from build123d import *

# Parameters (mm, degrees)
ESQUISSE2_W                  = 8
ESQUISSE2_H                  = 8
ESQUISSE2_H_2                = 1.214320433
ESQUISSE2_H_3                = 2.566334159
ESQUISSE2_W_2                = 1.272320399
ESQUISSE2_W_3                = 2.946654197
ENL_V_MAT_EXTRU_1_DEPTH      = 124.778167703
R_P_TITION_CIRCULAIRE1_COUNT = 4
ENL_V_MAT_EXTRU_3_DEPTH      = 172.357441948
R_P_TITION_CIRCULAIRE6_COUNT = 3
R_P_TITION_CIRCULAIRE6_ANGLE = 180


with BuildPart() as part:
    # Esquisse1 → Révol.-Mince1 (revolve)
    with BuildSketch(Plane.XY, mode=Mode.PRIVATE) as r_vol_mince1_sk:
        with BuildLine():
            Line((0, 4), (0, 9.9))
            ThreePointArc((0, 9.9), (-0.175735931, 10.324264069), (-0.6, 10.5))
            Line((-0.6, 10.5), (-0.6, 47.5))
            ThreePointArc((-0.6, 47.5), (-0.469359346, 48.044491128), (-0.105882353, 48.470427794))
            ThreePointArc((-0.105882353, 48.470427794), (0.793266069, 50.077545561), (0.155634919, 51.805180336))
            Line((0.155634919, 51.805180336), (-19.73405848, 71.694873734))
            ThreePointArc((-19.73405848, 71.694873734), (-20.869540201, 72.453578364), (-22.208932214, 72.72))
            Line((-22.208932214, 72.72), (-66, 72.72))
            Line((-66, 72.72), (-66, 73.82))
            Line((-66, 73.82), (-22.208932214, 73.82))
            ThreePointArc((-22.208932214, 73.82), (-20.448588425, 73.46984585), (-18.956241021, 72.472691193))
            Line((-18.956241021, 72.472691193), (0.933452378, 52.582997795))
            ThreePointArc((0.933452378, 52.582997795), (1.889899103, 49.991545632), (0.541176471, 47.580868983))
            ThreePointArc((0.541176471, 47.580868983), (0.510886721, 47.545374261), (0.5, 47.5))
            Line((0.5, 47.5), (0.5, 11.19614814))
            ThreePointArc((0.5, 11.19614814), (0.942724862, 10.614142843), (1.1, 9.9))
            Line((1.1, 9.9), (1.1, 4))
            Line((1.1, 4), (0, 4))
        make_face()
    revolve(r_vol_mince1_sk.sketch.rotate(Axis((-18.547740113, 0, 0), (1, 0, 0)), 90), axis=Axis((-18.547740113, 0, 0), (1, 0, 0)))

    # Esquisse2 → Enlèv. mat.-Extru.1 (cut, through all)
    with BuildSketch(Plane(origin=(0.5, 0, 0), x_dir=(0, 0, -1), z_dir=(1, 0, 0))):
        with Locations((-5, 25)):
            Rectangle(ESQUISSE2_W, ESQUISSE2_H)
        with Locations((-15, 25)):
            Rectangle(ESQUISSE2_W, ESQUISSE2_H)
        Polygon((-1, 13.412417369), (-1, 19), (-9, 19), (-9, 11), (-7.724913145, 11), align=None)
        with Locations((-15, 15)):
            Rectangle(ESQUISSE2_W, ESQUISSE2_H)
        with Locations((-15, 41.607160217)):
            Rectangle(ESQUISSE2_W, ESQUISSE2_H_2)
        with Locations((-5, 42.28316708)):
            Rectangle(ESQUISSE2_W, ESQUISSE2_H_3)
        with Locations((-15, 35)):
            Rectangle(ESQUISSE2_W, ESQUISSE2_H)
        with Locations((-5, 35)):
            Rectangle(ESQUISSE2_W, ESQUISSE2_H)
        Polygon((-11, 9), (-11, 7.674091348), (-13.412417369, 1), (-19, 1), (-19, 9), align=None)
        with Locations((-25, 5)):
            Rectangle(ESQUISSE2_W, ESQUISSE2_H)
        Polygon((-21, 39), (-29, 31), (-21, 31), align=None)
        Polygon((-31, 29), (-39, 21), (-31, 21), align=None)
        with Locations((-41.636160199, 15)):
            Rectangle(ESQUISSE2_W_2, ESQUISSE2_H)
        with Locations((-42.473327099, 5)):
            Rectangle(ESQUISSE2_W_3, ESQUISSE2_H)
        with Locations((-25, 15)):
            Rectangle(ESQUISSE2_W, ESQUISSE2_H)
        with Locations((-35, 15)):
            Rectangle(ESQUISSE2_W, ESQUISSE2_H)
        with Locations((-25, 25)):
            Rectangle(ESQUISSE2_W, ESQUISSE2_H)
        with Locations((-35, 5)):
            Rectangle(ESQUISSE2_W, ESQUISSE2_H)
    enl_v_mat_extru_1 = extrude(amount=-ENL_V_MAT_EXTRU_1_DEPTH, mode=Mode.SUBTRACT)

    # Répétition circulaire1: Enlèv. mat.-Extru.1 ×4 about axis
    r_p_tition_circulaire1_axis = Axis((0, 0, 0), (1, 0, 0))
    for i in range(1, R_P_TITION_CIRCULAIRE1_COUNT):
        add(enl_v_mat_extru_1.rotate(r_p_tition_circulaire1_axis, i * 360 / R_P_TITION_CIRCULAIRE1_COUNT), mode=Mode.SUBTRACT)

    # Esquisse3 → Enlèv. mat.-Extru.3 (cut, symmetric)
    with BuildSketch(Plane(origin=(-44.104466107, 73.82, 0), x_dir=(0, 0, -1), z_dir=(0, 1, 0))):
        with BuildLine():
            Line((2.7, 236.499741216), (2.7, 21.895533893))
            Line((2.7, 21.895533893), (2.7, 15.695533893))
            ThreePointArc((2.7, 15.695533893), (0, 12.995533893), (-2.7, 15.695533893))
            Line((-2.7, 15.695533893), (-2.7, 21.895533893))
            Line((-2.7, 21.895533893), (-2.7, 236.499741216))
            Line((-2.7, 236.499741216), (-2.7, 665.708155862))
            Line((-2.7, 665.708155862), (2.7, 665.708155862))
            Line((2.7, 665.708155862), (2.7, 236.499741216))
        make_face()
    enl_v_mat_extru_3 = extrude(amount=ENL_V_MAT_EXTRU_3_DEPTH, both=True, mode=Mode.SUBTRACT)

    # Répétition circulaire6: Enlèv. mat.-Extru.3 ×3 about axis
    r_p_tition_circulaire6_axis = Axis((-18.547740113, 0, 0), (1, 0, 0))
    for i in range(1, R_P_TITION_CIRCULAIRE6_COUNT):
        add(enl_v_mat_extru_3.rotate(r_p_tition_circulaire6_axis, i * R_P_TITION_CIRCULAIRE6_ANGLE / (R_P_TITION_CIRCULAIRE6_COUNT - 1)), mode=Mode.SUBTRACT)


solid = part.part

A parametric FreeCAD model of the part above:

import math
import FreeCAD as App
import Part
import Sketcher

V = App.Vector
Q = App.Units.Quantity

doc = App.newDocument("Part")
body = doc.addObject("PartDesign::Body", "Body")

sketch1 = body.newObject("Sketcher::SketchObject", "Sketch")
sketch1.AttachmentSupport = (doc.getObject("XY_Plane"), [""])
sketch1.MapMode = "FlatFace"
sketch1.addGeometry([
    Part.LineSegment(V(0, 9.9, 0), V(0, 4, 0)),
    Part.LineSegment(V(0, 4, 0), V(1.1, 4, 0)),
    Part.LineSegment(V(1.1, 4, 0), V(1.1, 9.9, 0)),
    Part.ArcOfCircle(Part.Circle(V(-0.6, 9.9, 0), V(0, 0, 1), 1.7), math.radians(0), math.radians(50)),
    Part.LineSegment(V(0.5, 11.2, 0), V(0.5, 47.5, 0)),
    Part.ArcOfCircle(Part.Circle(V(0.6, 47.5, 0), V(0, 0, 1), 0.1), math.radians(126), math.radians(180)),
    Part.ArcOfCircle(Part.Circle(V(-1.4, 50.25, 0), V(0, 0, 1), 3.3), math.radians(-54), math.radians(45)),
    Part.LineSegment(V(0.93, 52.58, 0), V(-18.96, 72.47, 0)),
    Part.ArcOfCircle(Part.Circle(V(-22.21, 69.22, 0), V(0, 0, 1), 4.6), math.radians(45), math.radians(90)),
    Part.LineSegment(V(-22.21, 73.82, 0), V(-66, 73.82, 0)),
    Part.LineSegment(V(-66, 73.82, 0), V(-66, 72.72, 0)),
    Part.LineSegment(V(-66, 72.72, 0), V(-22.21, 72.72, 0)),
    Part.ArcOfCircle(Part.Circle(V(-22.21, 69.22, 0), V(0, 0, 1), 3.5), math.radians(45), math.radians(90)),
    Part.LineSegment(V(-19.73, 71.69, 0), V(0.16, 51.81, 0)),
    Part.ArcOfCircle(Part.Circle(V(-1.4, 50.25, 0), V(0, 0, 1), 2.2), math.radians(-54), math.radians(45)),
    Part.ArcOfCircle(Part.Circle(V(0.6, 47.5, 0), V(0, 0, 1), 1.2), math.radians(126), math.radians(180)),
    Part.LineSegment(V(-0.6, 47.5, 0), V(-0.6, 10.5, 0)),
    Part.ArcOfCircle(Part.Circle(V(-0.6, 9.9, 0), V(0, 0, 1), 0.6), math.radians(0), math.radians(90)),
], False)
sketch1.addConstraint([
    Sketcher.Constraint("Coincident", 0, 2, 1, 1),
    Sketcher.Constraint("Coincident", 1, 2, 2, 1),
    Sketcher.Constraint("Tangent", 2, 2, 3, 1),
    Sketcher.Constraint("Coincident", 3, 2, 4, 1),
    Sketcher.Constraint("Tangent", 4, 2, 5, 2),
    Sketcher.Constraint("Tangent", 5, 1, 6, 1),
    Sketcher.Constraint("Tangent", 6, 2, 7, 1),
    Sketcher.Constraint("Tangent", 7, 2, 8, 1),
    Sketcher.Constraint("Tangent", 8, 2, 9, 1),
    Sketcher.Constraint("Coincident", 9, 2, 10, 1),
    Sketcher.Constraint("Coincident", 10, 2, 11, 1),
    Sketcher.Constraint("Tangent", 11, 2, 12, 2),
    Sketcher.Constraint("Tangent", 12, 1, 13, 1),
    Sketcher.Constraint("Tangent", 13, 2, 14, 2),
    Sketcher.Constraint("Tangent", 14, 1, 15, 1),
    Sketcher.Constraint("Tangent", 15, 2, 16, 1),
    Sketcher.Constraint("Coincident", 16, 2, 17, 2),
    Sketcher.Constraint("Tangent", 17, 1, 0, 1),
    Sketcher.Constraint("Vertical", 0),
    Sketcher.Constraint("Horizontal", 1),
    Sketcher.Constraint("Vertical", 2),
    Sketcher.Constraint("Vertical", 4),
    Sketcher.Constraint("Horizontal", 9),
    Sketcher.Constraint("Vertical", 10),
    Sketcher.Constraint("Horizontal", 11),
    Sketcher.Constraint("Vertical", 16),
    Sketcher.Constraint("Coincident", 12, 3, 8, 3),
    Sketcher.Constraint("Coincident", 14, 3, 6, 3),
    Sketcher.Constraint("Coincident", 15, 3, 5, 3),
    Sketcher.Constraint("Coincident", 17, 3, 3, 3),
    Sketcher.Constraint("PointOnObject", 0, 2, -2),
    Sketcher.Constraint("Parallel", 7, 13),
    Sketcher.Constraint("Vertical", 17, 3, 15, 2),
    Sketcher.Constraint("Equal", 1, 10),
    Sketcher.Constraint("Radius", 3, 1.7),
    Sketcher.Constraint("Radius", 5, 0.1),
    Sketcher.Constraint("Radius", 6, 3.3),
    Sketcher.Constraint("Radius", 8, 4.6),
    Sketcher.Constraint("Radius", 12, 3.5),
    Sketcher.Constraint("DistanceY", 16, 2, 16, 1, 37.0),
    Sketcher.Constraint("Angle", 7, Q("135 deg")),
    Sketcher.Constraint("DistanceY", 0, 2, 0, 1, 5.9),
    Sketcher.Constraint("DistanceY", -1, 1, 0, 2, 4.0),
    Sketcher.Constraint("DistanceX", 9, 2, -1, 1, 66.0),
    Sketcher.Constraint("DistanceX", 6, 3, 5, 3, 2.0),
    Sketcher.Constraint("DistanceY", -1, 1, 8, 3, 69.22),
])
revolution = body.newObject("PartDesign::Revolution", "Revolution")
revolution.Profile = sketch1
revolution.ReferenceAxis = (sketch1, ["H_Axis"])
revolution.Angle = 360

sketch2 = body.newObject("Sketcher::SketchObject", "Sketch001")
sketch2.AttachmentSupport = (doc.getObject("YZ_Plane"), [""])
sketch2.MapMode = "FlatFace"
sketch2.AttachmentOffset = App.Placement(V(0, 0, 0.5), App.Rotation())
sketch2.addGeometry([
    Part.LineSegment(V(29, 9, 0), V(21, 9, 0)),
    Part.LineSegment(V(21, 9, 0), V(21, 1, 0)),
    Part.LineSegment(V(21, 1, 0), V(29, 1, 0)),
    Part.LineSegment(V(29, 1, 0), V(29, 9, 0)),
    Part.LineSegment(V(29, 19, 0), V(21, 19, 0)),
    Part.LineSegment(V(21, 19, 0), V(21, 11, 0)),
    Part.LineSegment(V(21, 11, 0), V(29, 11, 0)),
    Part.LineSegment(V(29, 11, 0), V(29, 19, 0)),
    Part.LineSegment(V(13.4, 1, 0), V(19, 1, 0)),
    Part.LineSegment(V(19, 1, 0), V(19, 9, 0)),
    Part.LineSegment(V(19, 9, 0), V(11, 9, 0)),
    Part.LineSegment(V(11, 9, 0), V(11, 7.7, 0)),
    Part.LineSegment(V(11, 7.7, 0), V(13.4, 1, 0)),
    Part.LineSegment(V(19, 19, 0), V(11, 19, 0)),
    Part.LineSegment(V(11, 19, 0), V(11, 11, 0)),
    Part.LineSegment(V(11, 11, 0), V(19, 11, 0)),
    Part.LineSegment(V(19, 11, 0), V(19, 19, 0)),
    Part.LineSegment(V(42.2, 19, 0), V(41, 19, 0)),
    Part.LineSegment(V(41, 19, 0), V(41, 11, 0)),
    Part.LineSegment(V(41, 11, 0), V(42.2, 11, 0)),
    Part.LineSegment(V(42.2, 11, 0), V(42.2, 19, 0)),
    Part.LineSegment(V(43.6, 9, 0), V(41, 9, 0)),
    Part.LineSegment(V(41, 9, 0), V(41, 1, 0)),
    Part.LineSegment(V(41, 1, 0), V(43.6, 1, 0)),
    Part.LineSegment(V(43.6, 1, 0), V(43.6, 9, 0)),
    Part.LineSegment(V(39, 19, 0), V(31, 19, 0)),
    Part.LineSegment(V(31, 19, 0), V(31, 11, 0)),
    Part.LineSegment(V(31, 11, 0), V(39, 11, 0)),
    Part.LineSegment(V(39, 11, 0), V(39, 19, 0)),
    Part.LineSegment(V(39, 9, 0), V(31, 9, 0)),
    Part.LineSegment(V(31, 9, 0), V(31, 1, 0)),
    Part.LineSegment(V(31, 1, 0), V(39, 1, 0)),
    Part.LineSegment(V(39, 1, 0), V(39, 9, 0)),
    Part.LineSegment(V(7.7, 11, 0), V(9, 11, 0)),
    Part.LineSegment(V(9, 11, 0), V(9, 19, 0)),
    Part.LineSegment(V(9, 19, 0), V(1, 19, 0)),
    Part.LineSegment(V(1, 19, 0), V(1, 13.4, 0)),
    Part.LineSegment(V(1, 13.4, 0), V(7.7, 11, 0)),
    Part.LineSegment(V(9, 29, 0), V(1, 29, 0)),
    Part.LineSegment(V(1, 29, 0), V(1, 21, 0)),
    Part.LineSegment(V(1, 21, 0), V(9, 21, 0)),
    Part.LineSegment(V(9, 21, 0), V(9, 29, 0)),
    Part.LineSegment(V(39, 21, 0), V(31, 29, 0)),
    Part.LineSegment(V(31, 29, 0), V(31, 21, 0)),
    Part.LineSegment(V(31, 21, 0), V(39, 21, 0)),
    Part.LineSegment(V(29, 31, 0), V(21, 39, 0)),
    Part.LineSegment(V(21, 39, 0), V(21, 31, 0)),
    Part.LineSegment(V(21, 31, 0), V(29, 31, 0)),
    Part.LineSegment(V(19, 42.3, 0), V(11, 42.3, 0)),
    Part.LineSegment(V(11, 42.3, 0), V(11, 41, 0)),
    Part.LineSegment(V(11, 41, 0), V(19, 41, 0)),
    Part.LineSegment(V(19, 41, 0), V(19, 42.3, 0)),
    Part.LineSegment(V(9, 43.9, 0), V(1, 43.9, 0)),
    Part.LineSegment(V(1, 43.9, 0), V(1, 41, 0)),
    Part.LineSegment(V(1, 41, 0), V(9, 41, 0)),
    Part.LineSegment(V(9, 41, 0), V(9, 43.9, 0)),
    Part.LineSegment(V(19, 29, 0), V(11, 29, 0)),
    Part.LineSegment(V(11, 29, 0), V(11, 21, 0)),
    Part.LineSegment(V(11, 21, 0), V(19, 21, 0)),
    Part.LineSegment(V(19, 21, 0), V(19, 29, 0)),
    Part.LineSegment(V(19, 39, 0), V(11, 39, 0)),
    Part.LineSegment(V(11, 39, 0), V(11, 31, 0)),
    Part.LineSegment(V(11, 31, 0), V(19, 31, 0)),
    Part.LineSegment(V(19, 31, 0), V(19, 39, 0)),
    Part.LineSegment(V(29, 29, 0), V(21, 29, 0)),
    Part.LineSegment(V(21, 29, 0), V(21, 21, 0)),
    Part.LineSegment(V(21, 21, 0), V(29, 21, 0)),
    Part.LineSegment(V(29, 21, 0), V(29, 29, 0)),
    Part.LineSegment(V(9, 39, 0), V(1, 39, 0)),
    Part.LineSegment(V(1, 39, 0), V(1, 31, 0)),
    Part.LineSegment(V(1, 31, 0), V(9, 31, 0)),
    Part.LineSegment(V(9, 31, 0), V(9, 39, 0)),
], False)
sketch2.addConstraint([
    Sketcher.Constraint("Coincident", 0, 2, 1, 1),
    Sketcher.Constraint("Coincident", 1, 2, 2, 1),
    Sketcher.Constraint("Coincident", 2, 2, 3, 1),
    Sketcher.Constraint("Coincident", 3, 2, 0, 1),
    Sketcher.Constraint("Coincident", 4, 2, 5, 1),
    Sketcher.Constraint("Coincident", 5, 2, 6, 1),
    Sketcher.Constraint("Coincident", 6, 2, 7, 1),
    Sketcher.Constraint("Coincident", 7, 2, 4, 1),
    Sketcher.Constraint("Coincident", 8, 2, 9, 1),
    Sketcher.Constraint("Coincident", 9, 2, 10, 1),
    Sketcher.Constraint("Coincident", 10, 2, 11, 1),
    Sketcher.Constraint("Coincident", 11, 2, 12, 1),
    Sketcher.Constraint("Coincident", 12, 2, 8, 1),
    Sketcher.Constraint("Coincident", 13, 2, 14, 1),
    Sketcher.Constraint("Coincident", 14, 2, 15, 1),
    Sketcher.Constraint("Coincident", 15, 2, 16, 1),
    Sketcher.Constraint("Coincident", 16, 2, 13, 1),
    Sketcher.Constraint("Coincident", 17, 2, 18, 1),
    Sketcher.Constraint("Coincident", 18, 2, 19, 1),
    Sketcher.Constraint("Coincident", 19, 2, 20, 1),
    Sketcher.Constraint("Coincident", 20, 2, 17, 1),
    Sketcher.Constraint("Coincident", 21, 2, 22, 1),
    Sketcher.Constraint("Coincident", 22, 2, 23, 1),
    Sketcher.Constraint("Coincident", 23, 2, 24, 1),
    Sketcher.Constraint("Coincident", 24, 2, 21, 1),
    Sketcher.Constraint("Coincident", 25, 2, 26, 1),
    Sketcher.Constraint("Coincident", 26, 2, 27, 1),
    Sketcher.Constraint("Coincident", 27, 2, 28, 1),
    Sketcher.Constraint("Coincident", 28, 2, 25, 1),
    Sketcher.Constraint("Coincident", 29, 2, 30, 1),
    Sketcher.Constraint("Coincident", 30, 2, 31, 1),
    Sketcher.Constraint("Coincident", 31, 2, 32, 1),
    Sketcher.Constraint("Coincident", 32, 2, 29, 1),
    Sketcher.Constraint("Coincident", 33, 2, 34, 1),
    Sketcher.Constraint("Coincident", 34, 2, 35, 1),
    Sketcher.Constraint("Coincident", 35, 2, 36, 1),
    Sketcher.Constraint("Coincident", 36, 2, 37, 1),
    Sketcher.Constraint("Coincident", 37, 2, 33, 1),
    Sketcher.Constraint("Coincident", 38, 2, 39, 1),
    Sketcher.Constraint("Coincident", 39, 2, 40, 1),
    Sketcher.Constraint("Coincident", 40, 2, 41, 1),
    Sketcher.Constraint("Coincident", 41, 2, 38, 1),
    Sketcher.Constraint("Coincident", 42, 2, 43, 1),
    Sketcher.Constraint("Coincident", 43, 2, 44, 1),
    Sketcher.Constraint("Coincident", 44, 2, 42, 1),
    Sketcher.Constraint("Coincident", 45, 2, 46, 1),
    Sketcher.Constraint("Coincident", 46, 2, 47, 1),
    Sketcher.Constraint("Coincident", 47, 2, 45, 1),
    Sketcher.Constraint("Coincident", 48, 2, 49, 1),
    Sketcher.Constraint("Coincident", 49, 2, 50, 1),
    Sketcher.Constraint("Coincident", 50, 2, 51, 1),
    Sketcher.Constraint("Coincident", 51, 2, 48, 1),
    Sketcher.Constraint("Coincident", 52, 2, 53, 1),
    Sketcher.Constraint("Coincident", 53, 2, 54, 1),
    Sketcher.Constraint("Coincident", 54, 2, 55, 1),
    Sketcher.Constraint("Coincident", 55, 2, 52, 1),
    Sketcher.Constraint("Coincident", 56, 2, 57, 1),
    Sketcher.Constraint("Coincident", 57, 2, 58, 1),
    Sketcher.Constraint("Coincident", 58, 2, 59, 1),
    Sketcher.Constraint("Coincident", 59, 2, 56, 1),
    Sketcher.Constraint("Coincident", 60, 2, 61, 1),
    Sketcher.Constraint("Coincident", 61, 2, 62, 1),
    Sketcher.Constraint("Coincident", 62, 2, 63, 1),
    Sketcher.Constraint("Coincident", 63, 2, 60, 1),
    Sketcher.Constraint("Coincident", 64, 2, 65, 1),
    Sketcher.Constraint("Coincident", 65, 2, 66, 1),
    Sketcher.Constraint("Coincident", 66, 2, 67, 1),
    Sketcher.Constraint("Coincident", 67, 2, 64, 1),
    Sketcher.Constraint("Coincident", 68, 2, 69, 1),
    Sketcher.Constraint("Coincident", 69, 2, 70, 1),
    Sketcher.Constraint("Coincident", 70, 2, 71, 1),
    Sketcher.Constraint("Coincident", 71, 2, 68, 1),
    Sketcher.Constraint("Horizontal", 0),
    Sketcher.Constraint("Vertical", 1),
    Sketcher.Constraint("Horizontal", 2),
    Sketcher.Constraint("Vertical", 3),
    Sketcher.Constraint("Horizontal", 4),
    Sketcher.Constraint("Vertical", 5),
    Sketcher.Constraint("Horizontal", 6),
    Sketcher.Constraint("Vertical", 7),
    Sketcher.Constraint("Horizontal", 8),
    Sketcher.Constraint("Vertical", 9),
    Sketcher.Constraint("Horizontal", 10),
    Sketcher.Constraint("Vertical", 11),
    Sketcher.Constraint("Horizontal", 13),
    Sketcher.Constraint("Vertical", 14),
    Sketcher.Constraint("Horizontal", 15),
    Sketcher.Constraint("Vertical", 16),
    Sketcher.Constraint("Horizontal", 17),
    Sketcher.Constraint("Vertical", 18),
    Sketcher.Constraint("Horizontal", 19),
    Sketcher.Constraint("Vertical", 20),
    Sketcher.Constraint("Horizontal", 21),
    Sketcher.Constraint("Vertical", 22),
    Sketcher.Constraint("Horizontal", 23),
    Sketcher.Constraint("Vertical", 24),
    Sketcher.Constraint("Horizontal", 25),
    Sketcher.Constraint("Vertical", 26),
    Sketcher.Constraint("Horizontal", 27),
    Sketcher.Constraint("Vertical", 28),
    Sketcher.Constraint("Horizontal", 29),
    Sketcher.Constraint("Vertical", 30),
    Sketcher.Constraint("Horizontal", 31),
    Sketcher.Constraint("Vertical", 32),
    Sketcher.Constraint("Horizontal", 33),
    Sketcher.Constraint("Vertical", 34),
    Sketcher.Constraint("Horizontal", 35),
    Sketcher.Constraint("Vertical", 36),
    Sketcher.Constraint("Horizontal", 38),
    Sketcher.Constraint("Vertical", 39),
    Sketcher.Constraint("Horizontal", 40),
    Sketcher.Constraint("Vertical", 41),
    Sketcher.Constraint("Vertical", 43),
    Sketcher.Constraint("Horizontal", 44),
    Sketcher.Constraint("Vertical", 46),
    Sketcher.Constraint("Horizontal", 47),
    Sketcher.Constraint("Horizontal", 48),
    Sketcher.Constraint("Vertical", 49),
    Sketcher.Constraint("Horizontal", 50),
    Sketcher.Constraint("Vertical", 51),
    Sketcher.Constraint("Horizontal", 52),
    Sketcher.Constraint("Vertical", 53),
    Sketcher.Constraint("Horizontal", 54),
    Sketcher.Constraint("Vertical", 55),
    Sketcher.Constraint("Horizontal", 56),
    Sketcher.Constraint("Vertical", 57),
    Sketcher.Constraint("Horizontal", 58),
    Sketcher.Constraint("Vertical", 59),
    Sketcher.Constraint("Horizontal", 60),
    Sketcher.Constraint("Vertical", 61),
    Sketcher.Constraint("Horizontal", 62),
    Sketcher.Constraint("Vertical", 63),
    Sketcher.Constraint("Horizontal", 64),
    Sketcher.Constraint("Vertical", 65),
    Sketcher.Constraint("Horizontal", 66),
    Sketcher.Constraint("Vertical", 67),
    Sketcher.Constraint("Horizontal", 68),
    Sketcher.Constraint("Vertical", 69),
    Sketcher.Constraint("Horizontal", 70),
    Sketcher.Constraint("Vertical", 71),
    Sketcher.Constraint("Parallel", 42, 45),
    Sketcher.Constraint("Horizontal", 2, 2, 8, 2),
    Sketcher.Constraint("Horizontal", 3, 2, 9, 2),
    Sketcher.Constraint("Horizontal", 7, 2, 13, 2),
    Sketcher.Constraint("Horizontal", 6, 2, 14, 2),
    Sketcher.Constraint("Horizontal", 16, 2, 17, 2),
    Sketcher.Constraint("Horizontal", 15, 2, 18, 2),
    Sketcher.Constraint("Horizontal", 10, 2, 21, 2),
    Sketcher.Constraint("Horizontal", 12, 2, 22, 2),
    Sketcher.Constraint("Horizontal", 20, 2, 25, 2),
    Sketcher.Constraint("Horizontal", 19, 2, 26, 2),
    Sketcher.Constraint("Horizontal", 24, 2, 29, 2),
    Sketcher.Constraint("Horizontal", 23, 2, 30, 2),
    Sketcher.Constraint("Horizontal", 27, 2, 33, 2),
    Sketcher.Constraint("Horizontal", 28, 2, 34, 2),
    Sketcher.Constraint("Horizontal", 41, 2, 42, 2),
    Sketcher.Constraint("Horizontal", 40, 2, 43, 2),
    Sketcher.Constraint("Horizontal", 50, 2, 53, 2),
    Sketcher.Constraint("Horizontal", 42, 2, 56, 2),
    Sketcher.Constraint("Horizontal", 44, 2, 57, 2),
    Sketcher.Constraint("Horizontal", 45, 2, 60, 2),
    Sketcher.Constraint("Horizontal", 47, 2, 61, 2),
    Sketcher.Constraint("Horizontal", 59, 2, 64, 2),
    Sketcher.Constraint("Horizontal", 58, 2, 65, 2),
    Sketcher.Constraint("Horizontal", 63, 2, 68, 2),
    Sketcher.Constraint("Horizontal", 62, 2, 69, 2),
    Sketcher.Constraint("Vertical", 1, 2, 4, 2),
    Sketcher.Constraint("Vertical", 3, 2, 6, 2),
    Sketcher.Constraint("Vertical", 11, 2, 13, 2),
    Sketcher.Constraint("Vertical", 9, 2, 15, 2),
    Sketcher.Constraint("Vertical", 18, 2, 21, 2),
    Sketcher.Constraint("Vertical", 26, 2, 29, 2),
    Sketcher.Constraint("Vertical", 28, 2, 31, 2),
    Sketcher.Constraint("Vertical", 36, 2, 38, 2),
    Sketcher.Constraint("Vertical", 34, 2, 40, 2),
    Sketcher.Constraint("Vertical", 30, 2, 42, 2),
    Sketcher.Constraint("Vertical", 32, 2, 44, 2),
    Sketcher.Constraint("Vertical", 5, 2, 45, 2),
    Sketcher.Constraint("Vertical", 7, 2, 47, 2),
    Sketcher.Constraint("Vertical", 14, 2, 48, 2),
    Sketcher.Constraint("Vertical", 16, 2, 50, 2),
    Sketcher.Constraint("Vertical", 39, 2, 52, 2),
    Sketcher.Constraint("Vertical", 41, 2, 54, 2),
    Sketcher.Constraint("Vertical", 49, 2, 56, 2),
    Sketcher.Constraint("Vertical", 51, 2, 58, 2),
    Sketcher.Constraint("Vertical", 57, 2, 60, 2),
    Sketcher.Constraint("Vertical", 59, 2, 62, 2),
    Sketcher.Constraint("Vertical", 46, 2, 64, 2),
    Sketcher.Constraint("Vertical", 47, 2, 66, 2),
    Sketcher.Constraint("Vertical", 53, 2, 68, 2),
    Sketcher.Constraint("Vertical", 55, 2, 70, 2),
    Sketcher.Constraint("Equal", 6, 10),
    Sketcher.Constraint("Equal", 15, 25),
    Sketcher.Constraint("Equal", 31, 35),
    Sketcher.Constraint("Equal", 70, 1),
    Sketcher.Constraint("Equal", 3, 5),
    Sketcher.Constraint("Equal", 8, 36),
    Sketcher.Constraint("Equal", 34, 39),
    Sketcher.Constraint("DistanceX", 0, 2, 0, 1, 8.0),
    Sketcher.Constraint("DistanceX", -1, 1, 0, 2, 21.0),
    Sketcher.Constraint("DistanceY", -1, 1, 0, 2, 9.0),
    Sketcher.Constraint("DistanceY", -1, 1, 4, 2, 19.0),
    Sketcher.Constraint("DistanceX", -1, 1, 8, 2, 19.0),
    Sketcher.Constraint("DistanceX", -1, 1, 17, 2, 41.0),
    Sketcher.Constraint("DistanceX", -1, 1, 25, 2, 31.0),
    Sketcher.Constraint("DistanceX", -1, 1, 33, 2, 9.0),
    Sketcher.Constraint("DistanceY", -1, 1, 38, 2, 29.0),
    Sketcher.Constraint("DistanceY", -1, 1, 45, 2, 39.0),
    Sketcher.Constraint("DistanceY", -1, 1, 49, 2, 41.0),
    Sketcher.Constraint("DistanceX", 17, 2, 17, 1, 1.21432),
    Sketcher.Constraint("DistanceX", 33, 1, 33, 2, 1.325909),
    Sketcher.Constraint("DistanceY", 49, 2, 49, 1, 1.27232),
    Sketcher.Constraint("DistanceX", 8, 1, 8, 2, 5.587583),
    Sketcher.Constraint("DistanceX", 21, 2, 21, 1, 2.566334),
    Sketcher.Constraint("DistanceY", 11, 2, 11, 1, 1.275087),
    Sketcher.Constraint("DistanceY", 53, 2, 53, 1, 2.946654),
])
pocket1 = body.newObject("PartDesign::Pocket", "Pocket")
pocket1.Profile = sketch2
pocket1.Type = "ThroughAll"
doc.recompute()

polarpattern = body.newObject("PartDesign::PolarPattern", "PolarPattern")
polarpattern.Originals = [pocket1]
polarpattern.Axis = (doc.getObject("X_Axis"), [""])
polarpattern.Angle = 360
polarpattern.Occurrences = 4
body.Tip = polarpattern

sketch3 = body.newObject("Sketcher::SketchObject", "Sketch002")
sketch3.AttachmentSupport = (doc.getObject("XZ_Plane"), [""])
sketch3.MapMode = "FlatFace"
sketch3.AttachmentOffset = App.Placement(V(0, 0, -73.82), App.Rotation())
sketch3.addGeometry([
    Part.ArcOfCircle(Part.Circle(V(-59.8, 0, 0), V(0, 0, 1), 2.7), math.radians(-90), math.radians(90)),
    Part.LineSegment(V(-59.8, -2.7, 0), V(-709.8, -2.7, 0)),
    Part.LineSegment(V(-709.8, -2.7, 0), V(-709.8, 2.7, 0)),
    Part.LineSegment(V(-709.8, 2.7, 0), V(-59.8, 2.7, 0)),
], False)
sketch3.addConstraint([
    Sketcher.Constraint("Tangent", 0, 1, 1, 1),
    Sketcher.Constraint("Coincident", 1, 2, 2, 1),
    Sketcher.Constraint("Coincident", 2, 2, 3, 1),
    Sketcher.Constraint("Tangent", 3, 2, 0, 2),
    Sketcher.Constraint("Horizontal", 1),
    Sketcher.Constraint("Vertical", 2),
    Sketcher.Constraint("Horizontal", 3),
    Sketcher.Constraint("PointOnObject", 0, 3, -1),
    Sketcher.Constraint("Radius", 0, 2.7),
    Sketcher.Constraint("DistanceX", 0, 3, -1, 1, 59.8),
    Sketcher.Constraint("DistanceX", 1, 2, 1, 1, 650.012622),
])
pocket2 = body.newObject("PartDesign::Pocket", "Pocket001")
pocket2.Profile = sketch3
pocket2.Length = 344.714884
pocket2.Midplane = True
doc.recompute()

polarpattern2 = body.newObject("PartDesign::PolarPattern", "PolarPattern001")
polarpattern2.Originals = [pocket2]
polarpattern2.Axis = (doc.getObject("X_Axis"), [""])
polarpattern2.Angle = 180
polarpattern2.Occurrences = 3
body.Tip = polarpattern2

doc.recompute()
